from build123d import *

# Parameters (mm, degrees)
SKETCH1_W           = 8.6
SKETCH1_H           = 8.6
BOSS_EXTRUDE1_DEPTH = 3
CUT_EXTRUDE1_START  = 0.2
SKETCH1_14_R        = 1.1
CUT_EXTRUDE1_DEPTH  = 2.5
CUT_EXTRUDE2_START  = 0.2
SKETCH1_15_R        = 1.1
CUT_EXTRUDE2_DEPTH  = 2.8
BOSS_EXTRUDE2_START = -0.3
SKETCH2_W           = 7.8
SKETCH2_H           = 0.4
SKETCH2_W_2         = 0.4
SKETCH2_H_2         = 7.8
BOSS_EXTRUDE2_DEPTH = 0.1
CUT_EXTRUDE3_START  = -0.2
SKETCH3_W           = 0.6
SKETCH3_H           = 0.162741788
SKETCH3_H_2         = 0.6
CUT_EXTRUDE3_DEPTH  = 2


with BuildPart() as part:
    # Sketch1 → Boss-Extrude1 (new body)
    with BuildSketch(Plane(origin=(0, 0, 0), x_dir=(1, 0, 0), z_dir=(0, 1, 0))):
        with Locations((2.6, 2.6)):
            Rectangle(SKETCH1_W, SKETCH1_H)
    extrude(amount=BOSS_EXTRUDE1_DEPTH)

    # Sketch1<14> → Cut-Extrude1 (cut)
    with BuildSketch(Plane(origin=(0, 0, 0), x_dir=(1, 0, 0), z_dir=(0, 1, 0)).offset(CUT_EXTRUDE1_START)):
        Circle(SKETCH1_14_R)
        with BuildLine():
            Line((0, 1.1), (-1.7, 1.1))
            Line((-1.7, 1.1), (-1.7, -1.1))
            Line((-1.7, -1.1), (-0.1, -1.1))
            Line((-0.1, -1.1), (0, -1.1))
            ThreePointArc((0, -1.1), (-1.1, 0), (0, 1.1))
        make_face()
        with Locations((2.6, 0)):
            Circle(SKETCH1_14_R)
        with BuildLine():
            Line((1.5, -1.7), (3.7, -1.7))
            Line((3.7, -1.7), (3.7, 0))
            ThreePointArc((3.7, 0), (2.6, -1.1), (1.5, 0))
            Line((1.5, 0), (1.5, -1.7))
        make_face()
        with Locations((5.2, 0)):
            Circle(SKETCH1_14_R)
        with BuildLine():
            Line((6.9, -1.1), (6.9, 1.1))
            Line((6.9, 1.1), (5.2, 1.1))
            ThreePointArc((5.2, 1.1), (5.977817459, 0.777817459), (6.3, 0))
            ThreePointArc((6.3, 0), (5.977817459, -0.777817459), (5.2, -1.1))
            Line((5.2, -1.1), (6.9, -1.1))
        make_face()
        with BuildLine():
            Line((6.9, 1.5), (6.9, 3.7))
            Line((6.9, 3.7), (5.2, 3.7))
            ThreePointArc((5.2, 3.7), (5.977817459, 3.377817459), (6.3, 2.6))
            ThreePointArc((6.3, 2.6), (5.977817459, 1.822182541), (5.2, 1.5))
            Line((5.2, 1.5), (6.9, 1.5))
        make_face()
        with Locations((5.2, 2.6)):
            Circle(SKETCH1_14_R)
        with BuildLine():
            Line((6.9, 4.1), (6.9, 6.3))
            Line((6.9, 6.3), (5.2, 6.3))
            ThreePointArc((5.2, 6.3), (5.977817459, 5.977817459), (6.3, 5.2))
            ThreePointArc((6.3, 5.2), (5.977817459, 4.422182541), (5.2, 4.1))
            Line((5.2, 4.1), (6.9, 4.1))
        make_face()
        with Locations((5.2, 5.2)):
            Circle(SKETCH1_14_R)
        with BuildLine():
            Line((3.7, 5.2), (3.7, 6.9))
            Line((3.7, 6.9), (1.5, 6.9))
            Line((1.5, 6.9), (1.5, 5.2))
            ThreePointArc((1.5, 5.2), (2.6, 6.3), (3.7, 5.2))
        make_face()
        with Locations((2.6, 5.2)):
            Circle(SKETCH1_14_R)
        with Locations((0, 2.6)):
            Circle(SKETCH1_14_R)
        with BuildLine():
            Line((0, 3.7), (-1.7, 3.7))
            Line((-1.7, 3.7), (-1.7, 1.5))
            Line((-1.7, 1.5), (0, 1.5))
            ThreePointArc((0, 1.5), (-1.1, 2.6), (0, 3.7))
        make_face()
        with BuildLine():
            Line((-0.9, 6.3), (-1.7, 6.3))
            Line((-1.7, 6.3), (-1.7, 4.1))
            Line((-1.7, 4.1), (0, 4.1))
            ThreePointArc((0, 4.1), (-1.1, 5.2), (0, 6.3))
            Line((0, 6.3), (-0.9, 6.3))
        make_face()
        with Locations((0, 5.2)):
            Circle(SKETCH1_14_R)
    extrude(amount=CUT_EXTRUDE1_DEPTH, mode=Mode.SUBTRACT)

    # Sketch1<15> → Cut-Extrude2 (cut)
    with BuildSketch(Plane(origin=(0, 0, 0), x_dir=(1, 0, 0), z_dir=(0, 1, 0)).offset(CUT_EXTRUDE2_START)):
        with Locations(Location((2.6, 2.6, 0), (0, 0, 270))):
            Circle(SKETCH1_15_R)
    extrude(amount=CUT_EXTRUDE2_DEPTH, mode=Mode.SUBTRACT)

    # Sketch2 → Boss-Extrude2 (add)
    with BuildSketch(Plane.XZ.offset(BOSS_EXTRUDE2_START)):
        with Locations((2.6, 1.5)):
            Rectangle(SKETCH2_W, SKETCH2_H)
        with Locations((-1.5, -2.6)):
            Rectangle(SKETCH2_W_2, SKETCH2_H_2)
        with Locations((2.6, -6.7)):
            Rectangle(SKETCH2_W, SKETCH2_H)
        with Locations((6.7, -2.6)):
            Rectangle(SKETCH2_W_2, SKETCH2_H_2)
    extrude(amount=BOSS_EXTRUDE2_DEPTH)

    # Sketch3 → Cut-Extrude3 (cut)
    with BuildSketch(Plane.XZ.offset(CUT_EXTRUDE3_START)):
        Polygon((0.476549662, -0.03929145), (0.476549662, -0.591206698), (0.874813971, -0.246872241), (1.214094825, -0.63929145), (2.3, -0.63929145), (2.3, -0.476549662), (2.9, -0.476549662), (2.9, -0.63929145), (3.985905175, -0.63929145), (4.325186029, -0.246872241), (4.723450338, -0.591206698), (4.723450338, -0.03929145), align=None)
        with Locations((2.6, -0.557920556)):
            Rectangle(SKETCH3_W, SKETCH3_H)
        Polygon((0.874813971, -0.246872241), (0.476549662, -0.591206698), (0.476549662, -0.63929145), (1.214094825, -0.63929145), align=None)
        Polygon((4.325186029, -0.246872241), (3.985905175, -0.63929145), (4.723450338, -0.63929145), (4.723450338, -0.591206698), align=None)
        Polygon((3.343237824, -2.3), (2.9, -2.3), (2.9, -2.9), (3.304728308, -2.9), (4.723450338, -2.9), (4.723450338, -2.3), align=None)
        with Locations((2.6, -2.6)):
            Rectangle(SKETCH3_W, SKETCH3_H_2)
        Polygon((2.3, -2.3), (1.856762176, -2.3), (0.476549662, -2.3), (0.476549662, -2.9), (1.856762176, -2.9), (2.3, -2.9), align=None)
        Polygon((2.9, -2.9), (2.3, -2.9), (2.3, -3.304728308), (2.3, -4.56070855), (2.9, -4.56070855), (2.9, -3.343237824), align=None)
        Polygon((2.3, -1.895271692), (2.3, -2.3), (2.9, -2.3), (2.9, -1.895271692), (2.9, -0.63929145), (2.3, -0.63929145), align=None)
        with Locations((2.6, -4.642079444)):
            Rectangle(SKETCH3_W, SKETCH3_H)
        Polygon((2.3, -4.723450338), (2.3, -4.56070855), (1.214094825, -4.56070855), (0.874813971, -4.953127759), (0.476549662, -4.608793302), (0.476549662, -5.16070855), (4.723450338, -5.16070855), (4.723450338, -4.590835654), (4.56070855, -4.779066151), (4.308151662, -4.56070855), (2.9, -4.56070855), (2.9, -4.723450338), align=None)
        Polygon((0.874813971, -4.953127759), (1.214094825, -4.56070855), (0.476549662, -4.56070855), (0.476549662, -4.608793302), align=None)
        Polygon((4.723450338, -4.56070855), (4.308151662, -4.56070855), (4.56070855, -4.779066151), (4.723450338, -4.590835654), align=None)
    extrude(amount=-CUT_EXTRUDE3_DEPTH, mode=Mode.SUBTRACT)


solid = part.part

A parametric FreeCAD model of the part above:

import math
import FreeCAD as App
import Part
import Sketcher

V = App.Vector

doc = App.newDocument("Part")
body = doc.addObject("PartDesign::Body", "Body")

# Sketch on XZ plane
sketch1 = body.newObject("Sketcher::SketchObject", "Sketch")
sketch1.AttachmentSupport = (doc.getObject("XZ_Plane"), [""])
sketch1.MapMode = "FlatFace"
sketch1.addGeometry([
    Part.LineSegment(V(-2, -7, 0), V(-2, 2, 0)),
    Part.LineSegment(V(-2, 2, 0), V(7, 2, 0)),
    Part.LineSegment(V(7, 2, 0), V(7, -7, 0)),
    Part.LineSegment(V(7, -7, 0), V(-2, -7, 0)),
], False)
sketch1.addConstraint([
    Sketcher.Constraint("Coincident", 0, 2, 1, 1),
    Sketcher.Constraint("Coincident", 1, 2, 2, 1),
    Sketcher.Constraint("Coincident", 2, 2, 3, 1),
    Sketcher.Constraint("Coincident", 3, 2, 0, 1),
    Sketcher.Constraint("Vertical", 0),
    Sketcher.Constraint("Horizontal", 1),
    Sketcher.Constraint("Vertical", 2),
    Sketcher.Constraint("Horizontal", 3),
    Sketcher.Constraint("Equal", 3, 0),
    Sketcher.Constraint("DistanceX", 1, 1, 1, 2, 8.6),
    Sketcher.Constraint("DistanceX", 0, 2, -1, 1, 1.7),
    Sketcher.Constraint("DistanceY", -1, 1, 0, 2, 1.7),
])
pad1 = body.newObject("PartDesign::Pad", "Pad")
pad1.Profile = sketch1
pad1.Length = 3
pad1.Reversed = True

# Sketch on XZ plane
sketch2 = body.newObject("Sketcher::SketchObject", "Sketch001")
sketch2.AttachmentSupport = (doc.getObject("XZ_Plane"), [""])
sketch2.MapMode = "FlatFace"
sketch2.AttachmentOffset = App.Placement(V(0, 0, -0.2), App.Rotation())
sketch2.addGeometry([
    Part.LineSegment(V(0, -1.1, 0), V(-1.7, -1.1, 0)),  # 0
    Part.LineSegment(V(-1.7, -1.1, 0), V(-1.7, 1.1, 0)),  # 1
    Part.LineSegment(V(-1.7, 1.1, 0), V(0, 1.1, 0)),  # 2
    Part.ArcOfCircle(Part.Circle(V(0, 0, 0), V(0, 0, 1), 1.1), math.radians(-90), math.radians(90)),  # 3
    Part.ArcOfCircle(Part.Circle(V(2.6, 0, 0), V(0, 0, 1), 1.1), math.radians(180), math.radians(360)),  # 4
    Part.LineSegment(V(1.5, 0, 0), V(1.5, 1.7, 0)),  # 5
    Part.LineSegment(V(1.5, 1.7, 0), V(3.7, 1.7, 0)),  # 6
    Part.LineSegment(V(3.7, 1.7, 0), V(3.7, 0, 0)),  # 7
    Part.ArcOfCircle(Part.Circle(V(5.2, 0, 0), V(0, 0, 1), 1.1), math.radians(90), math.radians(270)),  # 8
    Part.LineSegment(V(5.2, 1.1, 0), V(6.9, 1.1, 0)),  # 9
    Part.LineSegment(V(6.9, 1.1, 0), V(6.9, -1.1, 0)),  # 10
    Part.LineSegment(V(6.9, -1.1, 0), V(5.2, -1.1, 0)),  # 11
    Part.LineSegment(V(6.9, -1.5, 0), V(6.9, -3.7, 0)),  # 12
    Part.LineSegment(V(6.9, -3.7, 0), V(5.2, -3.7, 0)),  # 13
    Part.ArcOfCircle(Part.Circle(V(5.2, -2.6, 0), V(0, 0, 1), 1.1), math.radians(90), math.radians(270)),  # 14
    Part.LineSegment(V(5.2, -1.5, 0), V(6.9, -1.5, 0)),  # 15
    Part.LineSegment(V(6.9, -4.1, 0), V(6.9, -6.3, 0)),  # 16
    Part.LineSegment(V(6.9, -6.3, 0), V(5.2, -6.3, 0)),  # 17
    Part.ArcOfCircle(Part.Circle(V(5.2, -5.2, 0), V(0, 0, 1), 1.1), math.radians(90), math.radians(270)),  # 18
    Part.LineSegment(V(5.2, -4.1, 0), V(6.9, -4.1, 0)),  # 19
    Part.LineSegment(V(3.7, -5.2, 0), V(3.7, -6.9, 0)),  # 20
    Part.LineSegment(V(3.7, -6.9, 0), V(1.5, -6.9, 0)),  # 21
    Part.LineSegment(V(1.5, -6.9, 0), V(1.5, -5.2, 0)),  # 22
    Part.ArcOfCircle(Part.Circle(V(2.6, -5.2, 0), V(0, 0, 1), 1.1), math.radians(0), math.radians(180)),  # 23
    Part.LineSegment(V(0, -3.7, 0), V(-1.7, -3.7, 0)),  # 24
    Part.LineSegment(V(-1.7, -3.7, 0), V(-1.7, -1.5, 0)),  # 25
    Part.LineSegment(V(-1.7, -1.5, 0), V(0, -1.5, 0)),  # 26
    Part.ArcOfCircle(Part.Circle(V(0, -2.6, 0), V(0, 0, 1), 1.1), math.radians(-90), math.radians(90)),  # 27
    Part.LineSegment(V(-1.7, -6.3, 0), V(-1.7, -4.1, 0)),  # 28
    Part.LineSegment(V(-1.7, -4.1, 0), V(0, -4.1, 0)),  # 29
    Part.ArcOfCircle(Part.Circle(V(0, -5.2, 0), V(0, 0, 1), 1.1), math.radians(-90), math.radians(90)),  # 30
    Part.LineSegment(V(0, -6.3, 0), V(-1.7, -6.3, 0)),  # 31
], False)
sketch2.addConstraint([
    Sketcher.Constraint("Coincident", 0, 2, 1, 1),
    Sketcher.Constraint("Coincident", 1, 2, 2, 1),
    Sketcher.Constraint("Tangent", 2, 2, 3, 2),
    Sketcher.Constraint("Tangent", 3, 1, 0, 1),
    Sketcher.Constraint("Tangent", 4, 1, 5, 1),
    Sketcher.Constraint("Coincident", 5, 2, 6, 1),
    Sketcher.Constraint("Coincident", 6, 2, 7, 1),
    Sketcher.Constraint("Tangent", 7, 2, 4, 2),
    Sketcher.Constraint("Tangent", 8, 1, 9, 1),
    Sketcher.Constraint("Coincident", 9, 2, 10, 1),
    Sketcher.Constraint("Coincident", 10, 2, 11, 1),
    Sketcher.Constraint("Tangent", 11, 2, 8, 2),
    Sketcher.Constraint("Coincident", 12, 2, 13, 1),
    Sketcher.Constraint("Tangent", 13, 2, 14, 2),
    Sketcher.Constraint("Tangent", 14, 1, 15, 1),
    Sketcher.Constraint("Coincident", 15, 2, 12, 1),
    Sketcher.Constraint("Coincident", 16, 2, 17, 1),
    Sketcher.Constraint("Tangent", 17, 2, 18, 2),
    Sketcher.Constraint("Tangent", 18, 1, 19, 1),
    Sketcher.Constraint("Coincident", 19, 2, 16, 1),
    Sketcher.Constraint("Coincident", 20, 2, 21, 1),
    Sketcher.Constraint("Coincident", 21, 2, 22, 1),
    Sketcher.Constraint("Tangent", 22, 2, 23, 2),
    Sketcher.Constraint("Tangent", 23, 1, 20, 1),
    Sketcher.Constraint("Coincident", 24, 2, 25, 1),
    Sketcher.Constraint("Coincident", 25, 2, 26, 1),
    Sketcher.Constraint("Tangent", 26, 2, 27, 2),
    Sketcher.Constraint("Tangent", 27, 1, 24, 1),
    Sketcher.Constraint("Coincident", 28, 2, 29, 1),
    Sketcher.Constraint("Tangent", 29, 2, 30, 2),
    Sketcher.Constraint("Tangent", 30, 1, 31, 1),
    Sketcher.Constraint("Coincident", 31, 2, 28, 1),
    Sketcher.Constraint("Horizontal", 0),
    Sketcher.Constraint("Vertical", 1),
    Sketcher.Constraint("Horizontal", 2),
    Sketcher.Constraint("Vertical", 5),
    Sketcher.Constraint("Horizontal", 6),
    Sketcher.Constraint("Vertical", 7),
    Sketcher.Constraint("Horizontal", 9),
    Sketcher.Constraint("Vertical", 10),
    Sketcher.Constraint("Horizontal", 11),
    Sketcher.Constraint("Vertical", 12),
    Sketcher.Constraint("Horizontal", 13),
    Sketcher.Constraint("Horizontal", 15),
    Sketcher.Constraint("Vertical", 16),
    Sketcher.Constraint("Horizontal", 17),
    Sketcher.Constraint("Horizontal", 19),
    Sketcher.Constraint("Vertical", 20),
    Sketcher.Constraint("Horizontal", 21),
    Sketcher.Constraint("Vertical", 22),
    Sketcher.Constraint("Horizontal", 24),
    Sketcher.Constraint("Vertical", 25),
    Sketcher.Constraint("Horizontal", 26),
    Sketcher.Constraint("Vertical", 28),
    Sketcher.Constraint("Horizontal", 29),
    Sketcher.Constraint("Horizontal", 31),
    Sketcher.Constraint("Coincident", 3, 3, -1, 1),
    Sketcher.Constraint("Equal", 3, 4),
    Sketcher.Constraint("Equal", 4, 8),
    Sketcher.Constraint("Equal", 8, 14),
    Sketcher.Constraint("Equal", 14, 18),
    Sketcher.Constraint("Equal", 18, 23),
    Sketcher.Constraint("Equal", 23, 27),
    Sketcher.Constraint("Equal", 27, 30),
    Sketcher.Constraint("PointOnObject", 4, 3, -1),
    Sketcher.Constraint("PointOnObject", 8, 3, -1),
    Sketcher.Constraint("PointOnObject", 27, 3, -2),
    Sketcher.Constraint("PointOnObject", 30, 3, -2),
    Sketcher.Constraint("Horizontal", 18, 3, 23, 3),
    Sketcher.Constraint("Horizontal", 14, 3, 27, 3),
    Sketcher.Constraint("Horizontal", 23, 3, 30, 3),
    Sketcher.Constraint("Vertical", 8, 3, 14, 3),
    Sketcher.Constraint("Vertical", 14, 3, 18, 3),
    Sketcher.Constraint("Vertical", 4, 3, 23, 3),
    Sketcher.Constraint("Vertical", 10, 2, 12, 2),
    Sketcher.Constraint("Vertical", 15, 2, 16, 2),
    Sketcher.Constraint("Vertical", 1, 2, 24, 2),
    Sketcher.Constraint("Vertical", 25, 2, 28, 2),
    Sketcher.Constraint("Equal", 2, 9),
    Sketcher.Constraint("Equal", 31, 5),
    Sketcher.Constraint("Equal", 7, 20),
    Sketcher.Constraint("Radius", 3, 1.1),
    Sketcher.Constraint("DistanceX", 0, 2, 0, 1, 1.7),
    Sketcher.Constraint("DistanceX", -1, 1, 4, 3, 2.6),
    Sketcher.Constraint("DistanceX", -1, 1, 8, 3, 5.2),
    Sketcher.Constraint("DistanceY", 14, 3, -1, 1, 2.6),
    Sketcher.Constraint("DistanceY", 18, 3, -1, 1, 5.2),
])
pocket1 = body.newObject("PartDesign::Pocket", "Pocket")
pocket1.Profile = sketch2
pocket1.Length = 2.5

# Sketch on XZ plane
sketch3 = body.newObject("Sketcher::SketchObject", "Sketch002")
sketch3.AttachmentSupport = (doc.getObject("XZ_Plane"), [""])
sketch3.MapMode = "FlatFace"
sketch3.AttachmentOffset = App.Placement(V(0, 0, -0.2), App.Rotation())
sketch3.addGeometry(Part.Circle(V(2.6, -2.6, 0), V(0, 0, 1), 1.1), False)
sketch3.addConstraint([
    Sketcher.Constraint("Diameter", 0, 2.2),
    Sketcher.Constraint("DistanceX", -1, 1, 0, 3, 2.6),
    Sketcher.Constraint("DistanceY", 0, 3, -1, 1, 2.6),
])
pocket2 = body.newObject("PartDesign::Pocket", "Pocket001")
pocket2.Profile = sketch3
pocket2.Length = 2.8

# Sketch on XZ plane
sketch4 = body.newObject("Sketcher::SketchObject", "Sketch003")
sketch4.AttachmentSupport = (doc.getObject("XZ_Plane"), [""])
sketch4.MapMode = "FlatFace"
sketch4.AttachmentOffset = App.Placement(V(0, 0, -0.3), App.Rotation())
sketch4.addGeometry([
    Part.LineSegment(V(-1.3, 1.7, 0), V(-1.3, 1.3, 0)),  # 0
    Part.LineSegment(V(-1.3, 1.3, 0), V(6.5, 1.3, 0)),  # 1
    Part.LineSegment(V(6.5, 1.3, 0), V(6.5, 1.7, 0)),  # 2
    Part.LineSegment(V(6.5, 1.7, 0), V(-1.3, 1.7, 0)),  # 3
    Part.LineSegment(V(-1.7, 1.3, 0), V(-1.7, -6.5, 0)),  # 4
    Part.LineSegment(V(-1.7, -6.5, 0), V(-1.3, -6.5, 0)),  # 5
    Part.LineSegment(V(-1.3, -6.5, 0), V(-1.3, 1.3, 0)),  # 6
    Part.LineSegment(V(-1.3, 1.3, 0), V(-1.7, 1.3, 0)),  # 7
    Part.LineSegment(V(-1.3, -6.5, 0), V(-1.3, -6.9, 0)),  # 8
    Part.LineSegment(V(-1.3, -6.9, 0), V(6.5, -6.9, 0)),  # 9
    Part.LineSegment(V(6.5, -6.9, 0), V(6.5, -6.5, 0)),  # 10
    Part.LineSegment(V(6.5, -6.5, 0), V(-1.3, -6.5, 0)),  # 11
    Part.LineSegment(V(6.5, 1.3, 0), V(6.5, -6.5, 0)),  # 12
    Part.LineSegment(V(6.5, -6.5, 0), V(6.9, -6.5, 0)),  # 13
    Part.LineSegment(V(6.9, -6.5, 0), V(6.9, 1.3, 0)),  # 14
    Part.LineSegment(V(6.9, 1.3, 0), V(6.5, 1.3, 0)),  # 15
], False)
sketch4.addConstraint([
    Sketcher.Constraint("Coincident", 0, 2, 1, 1),
    Sketcher.Constraint("Coincident", 1, 2, 2, 1),
    Sketcher.Constraint("Coincident", 2, 2, 3, 1),
    Sketcher.Constraint("Coincident", 3, 2, 0, 1),
    Sketcher.Constraint("Coincident", 4, 2, 5, 1),
    Sketcher.Constraint("Coincident", 5, 2, 6, 1),
    Sketcher.Constraint("Coincident", 6, 2, 7, 1),
    Sketcher.Constraint("Coincident", 7, 2, 4, 1),
    Sketcher.Constraint("Coincident", 8, 2, 9, 1),
    Sketcher.Constraint("Coincident", 9, 2, 10, 1),
    Sketcher.Constraint("Coincident", 10, 2, 11, 1),
    Sketcher.Constraint("Coincident", 11, 2, 8, 1),
    Sketcher.Constraint("Coincident", 12, 2, 13, 1),
    Sketcher.Constraint("Coincident", 13, 2, 14, 1),
    Sketcher.Constraint("Coincident", 14, 2, 15, 1),
    Sketcher.Constraint("Coincident", 15, 2, 12, 1),
    Sketcher.Constraint("Vertical", 0),
    Sketcher.Constraint("Horizontal", 1),
    Sketcher.Constraint("Vertical", 2),
    Sketcher.Constraint("Horizontal", 3),
    Sketcher.Constraint("Vertical", 4),
    Sketcher.Constraint("Horizontal", 5),
    Sketcher.Constraint("Vertical", 6),
    Sketcher.Constraint("Horizontal", 7),
    Sketcher.Constraint("Vertical", 8),
    Sketcher.Constraint("Horizontal", 9),
    Sketcher.Constraint("Vertical", 10),
    Sketcher.Constraint("Horizontal", 11),
    Sketcher.Constraint("Vertical", 12),
    Sketcher.Constraint("Horizontal", 13),
    Sketcher.Constraint("Vertical", 14),
    Sketcher.Constraint("Horizontal", 15),
    Sketcher.Constraint("Coincident", 6, 2, 0, 2),
    Sketcher.Constraint("Coincident", 11, 2, 5, 2),
    Sketcher.Constraint("Coincident", 12, 2, 10, 2),
    Sketcher.Constraint("Coincident", 15, 2, 1, 2),
    Sketcher.Constraint("Equal", 7, 13),
    Sketcher.Constraint("Equal", 15, 0),
    Sketcher.Constraint("Equal", 11, 4),
    Sketcher.Constraint("Equal", 2, 8),
    Sketcher.Constraint("DistanceX", 1, 1, 1, 2, 7.8),
    Sketcher.Constraint("DistanceX", 5, 1, 5, 2, 0.4),
    Sketcher.Constraint("DistanceX", 0, 2, -1, 1, 1.3),
    Sketcher.Constraint("DistanceY", -1, 1, 0, 2, 1.3),
])
pad2 = body.newObject("PartDesign::Pad", "Pad001")
pad2.Profile = sketch4
pad2.Length = 0.1

# Sketch on XZ plane
sketch5 = body.newObject("Sketcher::SketchObject", "Sketch004")
sketch5.AttachmentSupport = (doc.getObject("XZ_Plane"), [""])
sketch5.MapMode = "FlatFace"
sketch5.AttachmentOffset = App.Placement(V(0, 0, -0.2), App.Rotation())
sketch5.addGeometry([
    Part.LineSegment(V(0.5, 0, 0), V(0.5, -0.6, 0)),  # 0
    Part.LineSegment(V(0.5, -0.6, 0), V(2.3, -0.6, 0)),  # 1
    Part.LineSegment(V(2.3, -0.6, 0), V(2.3, -2.3, 0)),  # 2
    Part.LineSegment(V(2.3, -2.3, 0), V(0.5, -2.3, 0)),  # 3
    Part.LineSegment(V(0.5, -2.3, 0), V(0.5, -2.9, 0)),  # 4
    Part.LineSegment(V(0.5, -2.9, 0), V(2.3, -2.9, 0)),  # 5
    Part.LineSegment(V(2.3, -2.9, 0), V(2.3, -4.6, 0)),  # 6
    Part.LineSegment(V(2.3, -4.6, 0), V(0.5, -4.6, 0)),  # 7
    Part.LineSegment(V(0.5, -4.6, 0), V(0.5, -5.2, 0)),  # 8
    Part.LineSegment(V(0.5, -5.2, 0), V(4.7, -5.2, 0)),  # 9
    Part.LineSegment(V(4.7, -5.2, 0), V(4.7, -4.6, 0)),  # 10
    Part.LineSegment(V(4.7, -4.6, 0), V(2.9, -4.6, 0)),  # 11
    Part.LineSegment(V(2.9, -4.6, 0), V(2.9, -2.9, 0)),  # 12
    Part.LineSegment(V(2.9, -2.9, 0), V(4.7, -2.9, 0)),  # 13
    Part.LineSegment(V(4.7, -2.9, 0), V(4.7, -2.3, 0)),  # 14
    Part.LineSegment(V(4.7, -2.3, 0), V(2.9, -2.3, 0)),  # 15
    Part.LineSegment(V(2.9, -2.3, 0), V(2.9, -0.6, 0)),  # 16
    Part.LineSegment(V(2.9, -0.6, 0), V(4.7, -0.6, 0)),  # 17
    Part.LineSegment(V(4.7, -0.6, 0), V(4.7, 0, 0)),  # 18
    Part.LineSegment(V(4.7, 0, 0), V(0.5, 0, 0)),  # 19
], False)
sketch5.addConstraint([
    Sketcher.Constraint("Coincident", 0, 2, 1, 1),
    Sketcher.Constraint("Coincident", 1, 2, 2, 1),
    Sketcher.Constraint("Coincident", 2, 2, 3, 1),
    Sketcher.Constraint("Coincident", 3, 2, 4, 1),
    Sketcher.Constraint("Coincident", 4, 2, 5, 1),
    Sketcher.Constraint("Coincident", 5, 2, 6, 1),
    Sketcher.Constraint("Coincident", 6, 2, 7, 1),
    Sketcher.Constraint("Coincident", 7, 2, 8, 1),
    Sketcher.Constraint("Coincident", 8, 2, 9, 1),
    Sketcher.Constraint("Coincident", 9, 2, 10, 1),
    Sketcher.Constraint("Coincident", 10, 2, 11, 1),
    Sketcher.Constraint("Coincident", 11, 2, 12, 1),
    Sketcher.Constraint("Coincident", 12, 2, 13, 1),
    Sketcher.Constraint("Coincident", 13, 2, 14, 1),
    Sketcher.Constraint("Coincident", 14, 2, 15, 1),
    Sketcher.Constraint("Coincident", 15, 2, 16, 1),
    Sketcher.Constraint("Coincident", 16, 2, 17, 1),
    Sketcher.Constraint("Coincident", 17, 2, 18, 1),
    Sketcher.Constraint("Coincident", 18, 2, 19, 1),
    Sketcher.Constraint("Coincident", 19, 2, 0, 1),
    Sketcher.Constraint("Vertical", 0),
    Sketcher.Constraint("Horizontal", 1),
    Sketcher.Constraint("Vertical", 2),
    Sketcher.Constraint("Horizontal", 3),
    Sketcher.Constraint("Vertical", 4),
    Sketcher.Constraint("Horizontal", 5),
    Sketcher.Constraint("Vertical", 6),
    Sketcher.Constraint("Horizontal", 7),
    Sketcher.Constraint("Vertical", 8),
    Sketcher.Constraint("Horizontal", 9),
    Sketcher.Constraint("Vertical", 10),
    Sketcher.Constraint("Horizontal", 11),
    Sketcher.Constraint("Vertical", 12),
    Sketcher.Constraint("Horizontal", 13),
    Sketcher.Constraint("Vertical", 14),
    Sketcher.Constraint("Horizontal", 15),
    Sketcher.Constraint("Vertical", 16),
    Sketcher.Constraint("Horizontal", 17),
    Sketcher.Constraint("Vertical", 18),
    Sketcher.Constraint("Horizontal", 19),
    Sketcher.Constraint("Horizontal", 7, 2, 10, 2),
    Sketcher.Constraint("Horizontal", 5, 2, 12, 2),
    Sketcher.Constraint("Horizontal", 3, 2, 14, 2),
    Sketcher.Constraint("Horizontal", 1, 2, 16, 2),
    Sketcher.Constraint("Vertical", 0, 2, 3, 2),
    Sketcher.Constraint("Vertical", 2, 2, 5, 2),
    Sketcher.Constraint("Vertical", 4, 2, 7, 2),
    Sketcher.Constraint("Vertical", 10, 2, 13, 2),
    Sketcher.Constraint("Vertical", 12, 2, 15, 2),
    Sketcher.Constraint("Vertical", 14, 2, 17, 2),
    Sketcher.Constraint("Equal", 7, 11),
    Sketcher.Constraint("Equal", 0, 4),
    Sketcher.Constraint("Equal", 2, 6),
    Sketcher.Constraint("Equal", 4, 8),
    Sketcher.Constraint("DistanceY", 0, 2, 0, 1, 0.6),
    Sketcher.Constraint("DistanceX", -1, 1, 1, 2, 2.3),
    Sketcher.Constraint("DistanceY", 2, 2, -1, 1, 2.3),
    Sketcher.Constraint("DistanceX", -1, 1, 11, 2, 2.9),
    Sketcher.Constraint("DistanceX", 9, 1, 9, 2, 4.246901),
    Sketcher.Constraint("DistanceY", 2, 2, 2, 1, 1.660709),
])
pocket3 = body.newObject("PartDesign::Pocket", "Pocket002")
pocket3.Profile = sketch5
pocket3.Length = 2

doc.recompute()
